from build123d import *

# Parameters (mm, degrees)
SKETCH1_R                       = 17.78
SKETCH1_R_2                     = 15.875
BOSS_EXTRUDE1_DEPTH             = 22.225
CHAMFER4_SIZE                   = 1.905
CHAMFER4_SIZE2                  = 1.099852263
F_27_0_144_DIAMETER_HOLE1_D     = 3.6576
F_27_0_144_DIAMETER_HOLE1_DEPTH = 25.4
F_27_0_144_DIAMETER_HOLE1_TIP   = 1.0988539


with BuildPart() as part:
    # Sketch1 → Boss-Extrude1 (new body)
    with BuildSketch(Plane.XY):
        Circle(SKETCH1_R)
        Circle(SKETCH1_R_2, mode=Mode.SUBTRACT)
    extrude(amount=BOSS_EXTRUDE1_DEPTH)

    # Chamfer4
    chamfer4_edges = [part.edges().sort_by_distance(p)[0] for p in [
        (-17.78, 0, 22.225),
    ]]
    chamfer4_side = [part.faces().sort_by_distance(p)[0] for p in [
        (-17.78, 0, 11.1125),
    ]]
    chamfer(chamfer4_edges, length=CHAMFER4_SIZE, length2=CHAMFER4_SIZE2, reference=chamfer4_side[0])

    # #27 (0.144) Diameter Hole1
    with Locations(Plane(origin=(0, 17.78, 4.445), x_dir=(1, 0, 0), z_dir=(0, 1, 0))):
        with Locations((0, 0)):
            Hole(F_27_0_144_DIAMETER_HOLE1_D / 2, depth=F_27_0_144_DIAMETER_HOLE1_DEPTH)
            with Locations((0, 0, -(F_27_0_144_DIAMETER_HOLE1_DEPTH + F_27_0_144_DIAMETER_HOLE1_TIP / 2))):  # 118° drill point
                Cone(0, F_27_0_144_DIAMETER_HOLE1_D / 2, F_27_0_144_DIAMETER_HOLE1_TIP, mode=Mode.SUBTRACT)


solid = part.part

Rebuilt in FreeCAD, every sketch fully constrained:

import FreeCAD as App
import Part
import Sketcher
Q = App.Units.Quantity


def edges_at(feature, points):
    """Names of the edges that pass closest to the given points."""
    edges = feature.Shape.Edges
    near = lambda p: min(range(len(edges)), key=lambda i: edges[i].distToShape(Part.Vertex(*p))[0])
    return sorted({f"Edge{near(p) + 1}" for p in points})

doc = App.newDocument("Part")
body = doc.addObject("PartDesign::Body", "Body")

sketch1 = body.newObject("Sketcher::SketchObject", "Sketch")
sketch1.AttachmentSupport = (doc.getObject("XY_Plane"), [""])
sketch1.MapMode = "FlatFace"
sketch1.addGeometry(Part.Circle(App.Vector(0, 0, 0), App.Vector(0, 0, 1), 18), False)
sketch1.addGeometry(Part.Circle(App.Vector(0, 0, 0), App.Vector(0, 0, 1), 16), False)
sketch1.addConstraint(Sketcher.Constraint("Coincident", 0, 3, -1, 1))
sketch1.addConstraint(Sketcher.Constraint("Coincident", 1, 3, -1, 1))
sketch1.addConstraint(Sketcher.Constraint("Diameter", 0, Q("1.4 in")))
sketch1.addConstraint(Sketcher.Constraint("Diameter", 1, Q("1.25 in")))
pad1 = body.newObject("PartDesign::Pad", "Pad")
pad1.Profile = sketch1
pad1.Length = Q("0.875 in")
doc.recompute()

chamfer = body.newObject("PartDesign::Chamfer", "Chamfer")
chamfer.Base = (pad1, edges_at(pad1, [(-17.78, 0, 22.225)]))
chamfer.ChamferType = "Two distances"
chamfer.Size = Q("0.075 in")
chamfer.Size2 = 1.099852

sketch2 = body.newObject("Sketcher::SketchObject", "Sketch001")
sketch2.AttachmentSupport = (doc.getObject("XZ_Plane"), [""])
sketch2.MapMode = "FlatFace"
sketch2.AttachmentOffset = App.Placement(App.Vector(0, 0, -0.7 * 25.4), App.Rotation())
sketch2.addGeometry(Part.Circle(App.Vector(0, 4.4, 0), App.Vector(0, 0, 1), 1.8), False)
sketch2.addConstraint(Sketcher.Constraint("PointOnObject", 0, 3, -2))
sketch2.addConstraint(Sketcher.Constraint("Diameter", 0, Q("0.144 in")))
sketch2.addConstraint(Sketcher.Constraint("DistanceY", -1, 1, 0, 3, Q("0.175 in")))
doc.recompute()
hole = body.newObject("PartDesign::Hole", "Hole")
hole.Profile = sketch2
hole.ThreadType = "None"
hole.Diameter = Q("0.144 in")
hole.DepthType = "Dimension"
hole.Depth = Q("1 in")
hole.DrillPoint = "Angled"
hole.DrillPointAngle = 118
hole.Reversed = True

doc.recompute()
